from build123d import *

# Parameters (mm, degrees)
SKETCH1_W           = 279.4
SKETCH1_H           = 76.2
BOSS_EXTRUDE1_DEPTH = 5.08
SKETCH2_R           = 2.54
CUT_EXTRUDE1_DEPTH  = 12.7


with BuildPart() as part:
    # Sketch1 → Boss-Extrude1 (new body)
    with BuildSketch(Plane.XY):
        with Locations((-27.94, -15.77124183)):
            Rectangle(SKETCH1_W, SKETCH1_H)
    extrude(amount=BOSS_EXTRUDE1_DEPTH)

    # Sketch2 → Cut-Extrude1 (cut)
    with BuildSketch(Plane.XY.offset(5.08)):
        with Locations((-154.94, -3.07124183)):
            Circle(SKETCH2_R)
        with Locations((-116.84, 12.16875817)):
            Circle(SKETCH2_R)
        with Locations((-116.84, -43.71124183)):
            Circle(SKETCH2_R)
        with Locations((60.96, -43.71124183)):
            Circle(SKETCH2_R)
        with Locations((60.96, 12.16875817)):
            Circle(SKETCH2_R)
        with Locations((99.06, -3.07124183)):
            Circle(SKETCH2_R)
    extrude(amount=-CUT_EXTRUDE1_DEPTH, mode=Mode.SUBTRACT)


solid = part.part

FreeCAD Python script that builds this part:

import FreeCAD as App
import Part
import Sketcher
from FreeCAD import Vector
Q = App.Units.Quantity

doc = App.newDocument("Part")
body = doc.addObject("PartDesign::Body", "Body")

sketch1 = doc.addObject("Sketcher::SketchObject", "Sketch")
body.addObject(sketch1)
sketch1.AttachmentSupport = (doc.XY_Plane, [""])
sketch1.MapMode = "FlatFace"
sketch1.addGeometry([
    Part.LineSegment(Vector(-167.64, 22.328758, 0), Vector(-167.64, -53.871242, 0)),
    Part.LineSegment(Vector(-167.64, -53.871242, 0), Vector(111.76, -53.871242, 0)),
    Part.LineSegment(Vector(111.76, -53.871242, 0), Vector(111.76, 22.328758, 0)),
    Part.LineSegment(Vector(111.76, 22.328758, 0), Vector(-167.64, 22.328758, 0)),
], False)
sketch1.addConstraint([
    Sketcher.Constraint("Coincident", 0, 2, 1, 1),
    Sketcher.Constraint("Coincident", 1, 2, 2, 1),
    Sketcher.Constraint("Coincident", 2, 2, 3, 1),
    Sketcher.Constraint("Coincident", 3, 2, 0, 1),
    Sketcher.Constraint("Vertical", 0),
    Sketcher.Constraint("Horizontal", 1),
    Sketcher.Constraint("Vertical", 2),
    Sketcher.Constraint("Horizontal", 3),
    Sketcher.Constraint("DistanceX", 1, 1, 1, 2, Q("11 in")),
    Sketcher.Constraint("DistanceY", 0, 2, 0, 1, Q("3 in")),
    Sketcher.Constraint("DistanceX", 0, 2, -1, 1, Q("6.6 in")),
    Sketcher.Constraint("DistanceY", 0, 2, -1, 1, Q("53.871242 mm")),
])
pad1 = doc.addObject("PartDesign::Pad", "Pad")
body.addObject(pad1)
pad1.Profile = sketch1
pad1.Length = Q("0.2 in")

sketch2 = doc.addObject("Sketcher::SketchObject", "Sketch001")
body.addObject(sketch2)
sketch2.AttachmentSupport = (doc.XY_Plane, [""])
sketch2.MapMode = "FlatFace"
sketch2.AttachmentOffset = App.Placement(Vector(0, 0, 0.2 * 25.4), App.Rotation())
sketch2.addGeometry([
    Part.Circle(Vector(-154.94, -3.071242, 0), Vector(0, 0, 1), 2.54),
    Part.Circle(Vector(-116.84, 12.168758, 0), Vector(0, 0, 1), 2.54),
    Part.Circle(Vector(-116.84, -43.711242, 0), Vector(0, 0, 1), 2.54),
    Part.Circle(Vector(60.96, -43.711242, 0), Vector(0, 0, 1), 2.54),
    Part.Circle(Vector(60.96, 12.168758, 0), Vector(0, 0, 1), 2.54),
    Part.Circle(Vector(99.06, -3.071242, 0), Vector(0, 0, 1), 2.54),
], False)
sketch2.addConstraint([
    Sketcher.Constraint("Equal", 0, 1),
    Sketcher.Constraint("Equal", 1, 2),
    Sketcher.Constraint("Equal", 2, 3),
    Sketcher.Constraint("Equal", 3, 4),
    Sketcher.Constraint("Equal", 4, 5),
    Sketcher.Constraint("Horizontal", 2, 3, 3, 3),
    Sketcher.Constraint("Horizontal", 1, 3, 4, 3),
    Sketcher.Constraint("Horizontal", 0, 3, 5, 3),
    Sketcher.Constraint("Vertical", 1, 3, 2, 3),
    Sketcher.Constraint("Vertical", 3, 3, 4, 3),
    Sketcher.Constraint("Diameter", 0, Q("0.2 in")),
    Sketcher.Constraint("DistanceX", 2, 3, 3, 3, Q("7 in")),
    Sketcher.Constraint("DistanceX", 0, 3, 5, 3, Q("10 in")),
    Sketcher.Constraint("DistanceX", 0, 3, -1, 1, Q("6.1 in")),
    Sketcher.Constraint("DistanceX", 1, 3, -1, 1, Q("4.6 in")),
    Sketcher.Constraint("DistanceY", 0, 3, 1, 3, Q("0.6 in")),
    Sketcher.Constraint("DistanceY", 2, 3, 0, 3, Q("1.6 in")),
    Sketcher.Constraint("DistanceY", 0, 3, -1, 1, Q("3.071242 mm")),
])
pocket1 = doc.addObject("PartDesign::Pocket", "Pocket")
body.addObject(pocket1)
pocket1.Profile = sketch2
pocket1.Length = Q("0.5 in")

doc.recompute()
